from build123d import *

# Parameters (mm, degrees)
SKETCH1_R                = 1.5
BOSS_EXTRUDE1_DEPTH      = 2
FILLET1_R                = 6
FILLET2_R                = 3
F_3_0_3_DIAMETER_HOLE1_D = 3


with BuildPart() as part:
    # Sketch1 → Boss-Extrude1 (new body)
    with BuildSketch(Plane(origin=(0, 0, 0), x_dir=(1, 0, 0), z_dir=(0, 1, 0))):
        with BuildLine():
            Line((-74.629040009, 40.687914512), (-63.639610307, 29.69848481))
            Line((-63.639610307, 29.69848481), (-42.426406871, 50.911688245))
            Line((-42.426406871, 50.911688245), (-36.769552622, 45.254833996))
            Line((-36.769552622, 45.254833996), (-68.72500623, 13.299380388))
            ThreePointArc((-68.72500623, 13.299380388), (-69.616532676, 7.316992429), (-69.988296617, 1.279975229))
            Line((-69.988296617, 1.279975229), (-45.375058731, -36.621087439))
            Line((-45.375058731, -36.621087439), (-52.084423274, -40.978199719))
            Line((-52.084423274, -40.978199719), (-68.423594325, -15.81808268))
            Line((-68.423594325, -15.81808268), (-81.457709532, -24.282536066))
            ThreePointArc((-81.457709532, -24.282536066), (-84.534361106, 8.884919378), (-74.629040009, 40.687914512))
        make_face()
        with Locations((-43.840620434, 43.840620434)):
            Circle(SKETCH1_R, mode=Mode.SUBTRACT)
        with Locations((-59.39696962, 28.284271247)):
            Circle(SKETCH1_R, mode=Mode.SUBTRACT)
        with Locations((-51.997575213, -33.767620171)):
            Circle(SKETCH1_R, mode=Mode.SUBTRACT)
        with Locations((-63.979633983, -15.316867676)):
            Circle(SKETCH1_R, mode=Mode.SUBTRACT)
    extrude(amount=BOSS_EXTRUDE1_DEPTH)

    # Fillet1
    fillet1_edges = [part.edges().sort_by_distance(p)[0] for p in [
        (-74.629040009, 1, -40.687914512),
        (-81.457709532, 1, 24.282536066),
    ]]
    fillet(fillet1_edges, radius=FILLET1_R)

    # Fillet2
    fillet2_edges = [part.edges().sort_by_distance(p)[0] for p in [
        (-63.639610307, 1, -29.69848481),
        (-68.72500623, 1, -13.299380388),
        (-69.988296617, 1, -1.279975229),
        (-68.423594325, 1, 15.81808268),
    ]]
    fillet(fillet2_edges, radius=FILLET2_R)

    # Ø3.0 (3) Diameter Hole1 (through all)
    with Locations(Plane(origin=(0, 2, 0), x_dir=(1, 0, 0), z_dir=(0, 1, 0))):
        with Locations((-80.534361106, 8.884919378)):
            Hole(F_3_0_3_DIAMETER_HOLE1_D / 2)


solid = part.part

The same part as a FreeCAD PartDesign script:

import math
import FreeCAD as App
import Part
import Sketcher

V = App.Vector
Q = App.Units.Quantity


def edges_at(feature, points):
    """Names of the edges that pass closest to the given points."""
    edges = feature.Shape.Edges
    near = lambda p: min(range(len(edges)), key=lambda i: edges[i].distToShape(Part.Vertex(*p))[0])
    return sorted({f"Edge{near(p) + 1}" for p in points})

doc = App.newDocument("Part")
body = doc.addObject("PartDesign::Body", "Body")

sketch1 = body.newObject("Sketcher::SketchObject", "Sketch")
sketch1.AttachmentSupport = (doc.getObject("XZ_Plane"), [""])
sketch1.MapMode = "FlatFace"
sketch1.addGeometry([
    Part.LineSegment(V(-63.6, -29.7, 0), V(-74.6, -40.7, 0)),
    Part.ArcOfCircle(Part.Circle(V(0, 0, 0), V(0, 0, 1), 85), math.radians(163), math.radians(209)),
    Part.LineSegment(V(-81.5, 24.3, 0), V(-68.4, 15.8, 0)),
    Part.LineSegment(V(-68.4, 15.8, 0), V(-52.1, 41, 0)),
    Part.LineSegment(V(-52.1, 41, 0), V(-45.4, 36.6, 0)),
    Part.LineSegment(V(-45.4, 36.6, 0), V(-70, -1.3, 0)),
    Part.ArcOfCircle(Part.Circle(V(0, 0, 0), V(0, 0, 1), 70), math.radians(-178.95), math.radians(-169.05)),
    Part.LineSegment(V(-68.7, -13.3, 0), V(-36.8, -45.3, 0)),
    Part.LineSegment(V(-36.8, -45.3, 0), V(-42.4, -50.9, 0)),
    Part.LineSegment(V(-42.4, -50.9, 0), V(-63.6, -29.7, 0)),
    Part.Circle(V(-52, 33.8, 0), V(0, 0, 1), 1.5),
    Part.Circle(V(-64, 15.3, 0), V(0, 0, 1), 1.5),
    Part.Circle(V(-43.8, -43.8, 0), V(0, 0, 1), 1.5),
    Part.Circle(V(-59.4, -28.3, 0), V(0, 0, 1), 1.5),
], False)
sketch1.addConstraint([
    Sketcher.Constraint("Coincident", 0, 2, 1, 2),
    Sketcher.Constraint("Coincident", 1, 1, 2, 1),
    Sketcher.Constraint("Coincident", 2, 2, 3, 1),
    Sketcher.Constraint("Coincident", 3, 2, 4, 1),
    Sketcher.Constraint("Coincident", 4, 2, 5, 1),
    Sketcher.Constraint("Coincident", 5, 2, 6, 1),
    Sketcher.Constraint("Coincident", 6, 2, 7, 1),
    Sketcher.Constraint("Coincident", 7, 2, 8, 1),
    Sketcher.Constraint("Coincident", 8, 2, 9, 1),
    Sketcher.Constraint("Coincident", 9, 2, 0, 1),
    Sketcher.Constraint("Coincident", 1, 3, -1, 1),
    Sketcher.Constraint("Coincident", 6, 3, -1, 1),
    Sketcher.Constraint("Equal", 10, 11),
    Sketcher.Constraint("Equal", 11, 12),
    Sketcher.Constraint("Equal", 12, 13),
    Sketcher.Constraint("Perpendicular", 2, 3),
    Sketcher.Constraint("Perpendicular", 3, 4),
    Sketcher.Constraint("Perpendicular", 4, 5),
    Sketcher.Constraint("Perpendicular", 0, 7),
    Sketcher.Constraint("Perpendicular", 7, 8),
    Sketcher.Constraint("Perpendicular", 8, 9),
    Sketcher.Constraint("Equal", 0, 2),
    Sketcher.Constraint("Equal", 5, 7),
    Sketcher.Constraint("Equal", 4, 8),
    Sketcher.Constraint("Equal", 3, 9),
    Sketcher.Constraint("Diameter", 10, 3.0),
    Sketcher.Constraint("Radius", 1, 85.0),
    Sketcher.Constraint("Radius", 6, 70.0),
    Sketcher.Constraint("Angle", 0, Q("-135 deg")),
    Sketcher.Constraint("Angle", 2, Q("-33 deg")),
    Sketcher.Constraint("Distance", 3, 30.0),
    Sketcher.Constraint("Distance", 4, 8.0),
    Sketcher.Constraint("Distance", 0, 15.541401),
    Sketcher.Constraint("DistanceY", -1, 1, 3, 2, 40.9782),
    Sketcher.Constraint("DistanceY", -1, 1, 10, 3, 33.76762),
    Sketcher.Constraint("DistanceX", 12, 3, -1, 1, 43.84062),
    Sketcher.Constraint("DistanceY", 12, 3, -1, 1, 43.84062),
    Sketcher.Constraint("DistanceX", 13, 3, -1, 1, 59.39697),
    Sketcher.Constraint("DistanceY", 13, 3, -1, 1, 28.284271),
    Sketcher.Constraint("DistanceX", 11, 3, 10, 3, 11.982059),
    Sketcher.Constraint("DistanceY", 12, 3, 11, 3, 59.157488),
    Sketcher.Constraint("DistanceX", 2, 2, 11, 3, 4.44396),
])
pad1 = body.newObject("PartDesign::Pad", "Pad")
pad1.Profile = sketch1
pad1.Length = 2
pad1.Reversed = True
doc.recompute()

fillet = body.newObject("PartDesign::Fillet", "Fillet")
fillet.Base = (pad1, edges_at(pad1, [(-74.629, 1, -40.688), (-81.458, 1, 24.283)]))
fillet.Radius = 6
doc.recompute()

fillet2 = body.newObject("PartDesign::Fillet", "Fillet001")
fillet2.Base = (fillet, edges_at(fillet, [
    (-63.64, 1, -29.698),
    (-68.725, 1, -13.299),
    (-69.988, 1, -1.28),
    (-68.424, 1, 15.818),
]))
fillet2.Radius = 3

sketch2 = body.newObject("Sketcher::SketchObject", "Sketch001")
sketch2.AttachmentSupport = (doc.getObject("XZ_Plane"), [""])
sketch2.MapMode = "FlatFace"
sketch2.AttachmentOffset = App.Placement(V(0, 0, -2), App.Rotation())
sketch2.addGeometry(Part.Circle(V(-80.5, -8.9, 0), V(0, 0, 1), 1.5), False)
sketch2.addConstraint([
    Sketcher.Constraint("Diameter", 0, 3.0),
    Sketcher.Constraint("DistanceX", 0, 3, -1, 1, 80.534361),
    Sketcher.Constraint("DistanceY", 0, 3, -1, 1, 8.884919),
])
doc.recompute()
hole = body.newObject("PartDesign::Hole", "Hole")
hole.Profile = sketch2
hole.ThreadType = "None"
hole.Diameter = 3
hole.DepthType = "ThroughAll"
hole.Reversed = True

doc.recompute()
